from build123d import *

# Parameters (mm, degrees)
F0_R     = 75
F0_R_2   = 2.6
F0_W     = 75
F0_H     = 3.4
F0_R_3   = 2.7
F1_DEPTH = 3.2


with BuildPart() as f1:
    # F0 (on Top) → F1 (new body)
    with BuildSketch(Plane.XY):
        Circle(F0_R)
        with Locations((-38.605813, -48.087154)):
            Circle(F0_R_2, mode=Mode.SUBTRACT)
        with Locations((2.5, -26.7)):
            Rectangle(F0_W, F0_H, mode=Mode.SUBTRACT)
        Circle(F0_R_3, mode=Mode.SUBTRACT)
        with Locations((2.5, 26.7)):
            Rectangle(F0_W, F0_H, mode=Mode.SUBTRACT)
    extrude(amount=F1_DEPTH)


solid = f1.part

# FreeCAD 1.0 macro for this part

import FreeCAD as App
import Part
import Sketcher

V = App.Vector


def add_polygon(sketch, points):
    """Adds a closed chain of lines whose ends are joined by coincident constraints."""
    first, n = sketch.GeometryCount, len(points)
    for a, b in zip(points, points[1:] + points[:1]):
        sketch.addGeometry(Part.LineSegment(App.Vector(*a, 0), App.Vector(*b, 0)), False)
    for i in range(n):
        sketch.addConstraint(Sketcher.Constraint("Coincident", first + i, 2, first + (i + 1) % n, 1))

doc = App.newDocument("Part")
body = doc.addObject("PartDesign::Body", "Body")

sketch1 = body.newObject("Sketcher::SketchObject", "Sketch")
sketch1.AttachmentSupport = (doc.getObject("XY_Plane"), [""])
sketch1.MapMode = "FlatFace"
sketch1.addGeometry(Part.Circle(V(0, 0, 0), V(0, 0, 1), 75), False)
sketch1.addGeometry(Part.Circle(V(-38.605813, -48.087154, 0), V(0, 0, 1), 2.6), False)
add_polygon(sketch1, [(40, -28.4), (-35, -28.4), (-35, -25), (40, -25)])
sketch1.addGeometry(Part.Circle(V(0, 0, 0), V(0, 0, 1), 2.7), False)
add_polygon(sketch1, [(40, 25), (-35, 25), (-35, 28.4), (40, 28.4)])
sketch1.addConstraint([
    Sketcher.Constraint("Horizontal", 2),
    Sketcher.Constraint("Vertical", 3),
    Sketcher.Constraint("Horizontal", 4),
    Sketcher.Constraint("Vertical", 5),
    Sketcher.Constraint("Horizontal", 7),
    Sketcher.Constraint("Vertical", 8),
    Sketcher.Constraint("Horizontal", 9),
    Sketcher.Constraint("Vertical", 10),
    Sketcher.Constraint("Coincident", 0, 3, -1, 1),
    Sketcher.Constraint("Coincident", 6, 3, -1, 1),
    Sketcher.Constraint("Symmetric", 3, 2, 7, 2, -1),
    Sketcher.Constraint("Symmetric", 5, 2, 9, 2, -1),
    Sketcher.Constraint("Diameter", 0, 150.0),
    Sketcher.Constraint("Diameter", 1, 5.2),
    Sketcher.Constraint("Diameter", 6, 5.4),
    Sketcher.Constraint("DistanceX", 2, 2, 2, 1, 75.0),
    Sketcher.Constraint("DistanceY", 3, 1, 3, 2, 3.4),
    Sketcher.Constraint("DistanceX", 2, 2, -1, 1, 35.0),
    Sketcher.Constraint("DistanceY", 3, 2, -1, 1, 25.0),
    Sketcher.Constraint("DistanceX", 1, 3, -1, 1, 38.605813),
    Sketcher.Constraint("DistanceY", 1, 3, -1, 1, 48.087154),
])
pad1 = body.newObject("PartDesign::Pad", "Pad")
pad1.Profile = sketch1
pad1.Length = 3.2

doc.recompute()
